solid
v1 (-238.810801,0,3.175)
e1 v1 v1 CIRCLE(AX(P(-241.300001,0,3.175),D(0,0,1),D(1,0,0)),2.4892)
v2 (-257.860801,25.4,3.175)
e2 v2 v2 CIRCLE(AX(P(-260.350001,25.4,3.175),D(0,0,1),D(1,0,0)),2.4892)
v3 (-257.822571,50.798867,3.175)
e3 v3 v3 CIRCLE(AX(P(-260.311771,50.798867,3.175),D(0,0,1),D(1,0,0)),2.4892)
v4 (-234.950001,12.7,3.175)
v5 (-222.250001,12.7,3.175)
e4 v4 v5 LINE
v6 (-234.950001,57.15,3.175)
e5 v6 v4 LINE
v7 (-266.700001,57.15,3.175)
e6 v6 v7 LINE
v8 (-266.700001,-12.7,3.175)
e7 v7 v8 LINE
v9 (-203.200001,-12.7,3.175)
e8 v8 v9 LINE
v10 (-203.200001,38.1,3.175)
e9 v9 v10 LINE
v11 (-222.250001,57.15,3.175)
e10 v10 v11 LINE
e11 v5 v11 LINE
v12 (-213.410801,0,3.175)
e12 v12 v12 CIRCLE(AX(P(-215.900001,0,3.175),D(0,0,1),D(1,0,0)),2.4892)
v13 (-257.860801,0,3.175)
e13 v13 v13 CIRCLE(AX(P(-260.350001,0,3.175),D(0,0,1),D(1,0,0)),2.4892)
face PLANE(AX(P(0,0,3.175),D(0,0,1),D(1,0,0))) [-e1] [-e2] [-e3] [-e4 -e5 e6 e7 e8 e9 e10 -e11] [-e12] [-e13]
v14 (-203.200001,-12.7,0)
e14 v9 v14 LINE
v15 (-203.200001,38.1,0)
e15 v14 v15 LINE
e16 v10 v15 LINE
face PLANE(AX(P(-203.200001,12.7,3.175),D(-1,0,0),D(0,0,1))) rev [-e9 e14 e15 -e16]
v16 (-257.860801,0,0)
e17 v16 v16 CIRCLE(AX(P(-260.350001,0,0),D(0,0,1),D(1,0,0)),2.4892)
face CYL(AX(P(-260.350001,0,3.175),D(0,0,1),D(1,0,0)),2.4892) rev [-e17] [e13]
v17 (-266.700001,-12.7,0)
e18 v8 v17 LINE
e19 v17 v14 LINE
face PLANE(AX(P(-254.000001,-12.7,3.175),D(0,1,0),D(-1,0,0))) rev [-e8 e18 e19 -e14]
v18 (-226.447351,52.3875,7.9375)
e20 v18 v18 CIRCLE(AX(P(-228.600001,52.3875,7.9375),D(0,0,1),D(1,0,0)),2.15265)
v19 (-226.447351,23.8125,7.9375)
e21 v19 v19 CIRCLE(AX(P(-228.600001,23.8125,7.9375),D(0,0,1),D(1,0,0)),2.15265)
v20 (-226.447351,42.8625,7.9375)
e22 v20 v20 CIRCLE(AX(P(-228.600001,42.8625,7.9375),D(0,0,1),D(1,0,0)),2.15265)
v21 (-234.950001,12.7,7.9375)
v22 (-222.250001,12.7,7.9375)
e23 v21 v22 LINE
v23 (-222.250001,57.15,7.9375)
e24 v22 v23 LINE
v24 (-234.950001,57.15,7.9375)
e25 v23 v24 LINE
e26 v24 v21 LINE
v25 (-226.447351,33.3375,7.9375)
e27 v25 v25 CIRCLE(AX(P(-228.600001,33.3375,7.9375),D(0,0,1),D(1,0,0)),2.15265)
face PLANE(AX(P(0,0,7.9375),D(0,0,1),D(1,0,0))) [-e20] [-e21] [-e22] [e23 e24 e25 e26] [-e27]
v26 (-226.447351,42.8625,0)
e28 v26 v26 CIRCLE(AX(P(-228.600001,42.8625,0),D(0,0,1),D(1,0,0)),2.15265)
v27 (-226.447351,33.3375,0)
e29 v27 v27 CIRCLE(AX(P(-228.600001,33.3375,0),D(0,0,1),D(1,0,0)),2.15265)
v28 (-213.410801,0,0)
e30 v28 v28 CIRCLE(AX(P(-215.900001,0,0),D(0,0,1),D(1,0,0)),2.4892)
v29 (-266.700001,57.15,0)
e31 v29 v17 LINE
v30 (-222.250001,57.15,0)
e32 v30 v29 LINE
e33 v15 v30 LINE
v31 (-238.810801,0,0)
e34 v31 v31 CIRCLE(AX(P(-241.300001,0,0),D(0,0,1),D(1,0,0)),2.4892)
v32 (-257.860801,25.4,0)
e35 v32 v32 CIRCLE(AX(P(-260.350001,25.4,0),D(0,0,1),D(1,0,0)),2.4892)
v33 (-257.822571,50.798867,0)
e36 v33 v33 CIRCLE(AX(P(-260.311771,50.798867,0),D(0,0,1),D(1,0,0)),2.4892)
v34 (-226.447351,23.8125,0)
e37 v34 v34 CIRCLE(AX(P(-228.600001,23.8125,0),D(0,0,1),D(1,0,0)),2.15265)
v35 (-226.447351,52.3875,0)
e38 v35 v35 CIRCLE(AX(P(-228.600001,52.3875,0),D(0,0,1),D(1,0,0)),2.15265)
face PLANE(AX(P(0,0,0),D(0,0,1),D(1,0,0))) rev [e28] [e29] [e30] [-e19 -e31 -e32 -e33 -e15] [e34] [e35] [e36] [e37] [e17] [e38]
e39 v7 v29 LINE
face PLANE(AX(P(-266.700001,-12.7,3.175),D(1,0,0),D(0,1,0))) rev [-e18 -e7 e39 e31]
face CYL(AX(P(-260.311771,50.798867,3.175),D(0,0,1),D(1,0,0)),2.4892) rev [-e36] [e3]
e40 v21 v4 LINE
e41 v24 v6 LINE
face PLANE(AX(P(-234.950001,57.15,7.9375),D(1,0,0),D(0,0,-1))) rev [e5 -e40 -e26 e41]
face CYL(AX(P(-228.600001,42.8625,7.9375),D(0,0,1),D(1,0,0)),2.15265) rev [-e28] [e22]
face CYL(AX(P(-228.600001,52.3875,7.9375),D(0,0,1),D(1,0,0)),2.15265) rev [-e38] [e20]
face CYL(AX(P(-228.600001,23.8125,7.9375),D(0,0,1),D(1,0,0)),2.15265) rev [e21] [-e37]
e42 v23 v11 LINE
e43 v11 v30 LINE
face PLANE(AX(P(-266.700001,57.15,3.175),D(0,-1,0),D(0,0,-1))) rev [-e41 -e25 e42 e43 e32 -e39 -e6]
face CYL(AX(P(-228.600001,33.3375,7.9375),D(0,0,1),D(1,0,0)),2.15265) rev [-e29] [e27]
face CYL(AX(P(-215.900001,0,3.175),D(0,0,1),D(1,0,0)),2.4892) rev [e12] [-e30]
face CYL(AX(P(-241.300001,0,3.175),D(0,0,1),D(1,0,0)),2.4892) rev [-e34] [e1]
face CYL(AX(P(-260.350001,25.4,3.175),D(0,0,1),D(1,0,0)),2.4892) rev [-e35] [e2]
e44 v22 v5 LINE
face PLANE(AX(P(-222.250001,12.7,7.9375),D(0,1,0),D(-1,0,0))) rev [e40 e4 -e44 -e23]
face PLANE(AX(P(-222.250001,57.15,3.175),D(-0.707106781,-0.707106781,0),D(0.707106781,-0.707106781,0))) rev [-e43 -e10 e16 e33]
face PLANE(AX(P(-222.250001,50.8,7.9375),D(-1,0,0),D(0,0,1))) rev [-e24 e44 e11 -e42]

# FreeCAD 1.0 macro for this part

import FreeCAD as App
import Part
import Sketcher

V = App.Vector
Q = App.Units.Quantity

doc = App.newDocument("Part")
body = doc.addObject("PartDesign::Body", "Body")

# Sketch on XY plane
sketch1 = doc.addObject("Sketcher::SketchObject", "Sketch")
body.addObject(sketch1)
sketch1.AttachmentSupport = (doc.XY_Plane, [""])
sketch1.MapMode = "FlatFace"
sketch1.addGeometry([
    Part.LineSegment(V(-267, -13, 0), V(-203, -13, 0)),  # 0
    Part.LineSegment(V(-203, -13, 0), V(-203, 38, 0)),  # 1
    Part.LineSegment(V(-203, 38, 0), V(-222, 57, 0)),  # 2
    Part.LineSegment(V(-222, 57, 0), V(-267, 57, 0)),  # 3
    Part.LineSegment(V(-267, 57, 0), V(-267, -13, 0)),  # 4
], False)
sketch1.addConstraint([
    Sketcher.Constraint("Coincident", 0, 2, 1, 1),
    Sketcher.Constraint("Coincident", 1, 2, 2, 1),
    Sketcher.Constraint("Coincident", 2, 2, 3, 1),
    Sketcher.Constraint("Coincident", 3, 2, 4, 1),
    Sketcher.Constraint("Coincident", 4, 2, 0, 1),
    Sketcher.Constraint("Horizontal", 0),
    Sketcher.Constraint("Vertical", 1),
    Sketcher.Constraint("Horizontal", 3),
    Sketcher.Constraint("Vertical", 4),
    Sketcher.Constraint("DistanceY", 1, 1, 1, 2, Q("2 in")),
    Sketcher.Constraint("DistanceX", 0, 1, 0, 2, Q("2.5 in")),
    Sketcher.Constraint("DistanceX", 0, 2, -1, 1, Q("8 in")),
    Sketcher.Constraint("Angle", 2, Q("135 deg")),
    Sketcher.Constraint("DistanceX", 3, 2, 3, 1, Q("1.75 in")),
    Sketcher.Constraint("DistanceY", 0, 2, -1, 1, Q("0.5 in")),
])
pad1 = doc.addObject("PartDesign::Pad", "Pad")
body.addObject(pad1)
pad1.Profile = sketch1
pad1.Length = Q("0.125 in")

# Sketch on XY plane
sketch2 = doc.addObject("Sketcher::SketchObject", "Sketch001")
body.addObject(sketch2)
sketch2.AttachmentSupport = (doc.XY_Plane, [""])
sketch2.MapMode = "FlatFace"
sketch2.AttachmentOffset = App.Placement(V(0, 0, 0.125 * 25.4), App.Rotation())
sketch2.addGeometry([
    Part.Circle(V(-260.3, 50.8, 0), V(0, 0, 1), 2.5),  # 0
    Part.Circle(V(-260.4, 25.4, 0), V(0, 0, 1), 2.5),  # 1
    Part.Circle(V(-260.4, 0, 0), V(0, 0, 1), 2.5),  # 2
    Part.Circle(V(-241.3, 0, 0), V(0, 0, 1), 2.5),  # 3
    Part.Circle(V(-215.9, 0, 0), V(0, 0, 1), 2.5),  # 4
], False)
sketch2.addConstraint([
    Sketcher.Constraint("Equal", 0, 1),
    Sketcher.Constraint("Equal", 1, 2),
    Sketcher.Constraint("Equal", 2, 3),
    Sketcher.Constraint("Equal", 3, 4),
    Sketcher.Constraint("PointOnObject", 2, 3, -1),
    Sketcher.Constraint("PointOnObject", 3, 3, -1),
    Sketcher.Constraint("PointOnObject", 4, 3, -1),
    Sketcher.Constraint("Vertical", 1, 3, 2, 3),
    Sketcher.Constraint("Diameter", 0, Q("0.196 in")),
    Sketcher.Constraint("DistanceY", -1, 1, 1, 3, Q("1 in")),
    Sketcher.Constraint("DistanceX", 3, 3, 4, 3, Q("1 in")),
    Sketcher.Constraint("DistanceX", 3, 3, -1, 1, Q("9.5 in")),
    Sketcher.Constraint("DistanceX", 1, 3, -1, 1, Q("10.25 in")),
    Sketcher.Constraint("DistanceX", 0, 3, -1, 1, Q("260.311771 mm")),
    Sketcher.Constraint("DistanceY", -1, 1, 0, 3, Q("50.798867 mm")),
])
doc.recompute()
hole = doc.addObject("PartDesign::Hole", "Hole")
body.addObject(hole)
hole.Profile = sketch2
hole.ThreadType = "None"
hole.Diameter = Q("0.196 in")
hole.DepthType = "ThroughAll"

# Sketch on XY plane
sketch3 = doc.addObject("Sketcher::SketchObject", "Sketch002")
body.addObject(sketch3)
sketch3.AttachmentSupport = (doc.XY_Plane, [""])
sketch3.MapMode = "FlatFace"
sketch3.AttachmentOffset = App.Placement(V(0, 0, 0.125 * 25.4), App.Rotation())
sketch3.addGeometry([
    Part.LineSegment(V(-222, 57, 0), V(-235, 57, 0)),
    Part.LineSegment(V(-235, 57, 0), V(-235, 13, 0)),
    Part.LineSegment(V(-235, 13, 0), V(-222, 13, 0)),
    Part.LineSegment(V(-222, 13, 0), V(-222, 57, 0)),
], False)
sketch3.addConstraint([
    Sketcher.Constraint("Coincident", 0, 2, 1, 1),
    Sketcher.Constraint("Coincident", 1, 2, 2, 1),
    Sketcher.Constraint("Coincident", 2, 2, 3, 1),
    Sketcher.Constraint("Coincident", 3, 2, 0, 1),
    Sketcher.Constraint("Horizontal", 0),
    Sketcher.Constraint("Vertical", 1),
    Sketcher.Constraint("Horizontal", 2),
    Sketcher.Constraint("Vertical", 3),
    Sketcher.Constraint("DistanceX", 0, 2, 0, 1, Q("0.5 in")),
    Sketcher.Constraint("DistanceY", 1, 2, 1, 1, Q("1.75 in")),
    Sketcher.Constraint("DistanceY", -1, 1, 1, 2, Q("0.5 in")),
    Sketcher.Constraint("DistanceX", 0, 2, -1, 1, Q("9.25 in")),
])
pad2 = doc.addObject("PartDesign::Pad", "Pad001")
body.addObject(pad2)
pad2.Profile = sketch3
pad2.Length = Q("0.1875 in")

# Sketch on XY plane
sketch4 = doc.addObject("Sketcher::SketchObject", "Sketch003")
body.addObject(sketch4)
sketch4.AttachmentSupport = (doc.XY_Plane, [""])
sketch4.MapMode = "FlatFace"
sketch4.AttachmentOffset = App.Placement(V(0, 0, 0.3125 * 25.4), App.Rotation())
sketch4.addGeometry([
    Part.Circle(V(-228.6, 42.9, 0), V(0, 0, 1), 2.2),
    Part.Circle(V(-228.6, 52.4, 0), V(0, 0, 1), 2.2),
    Part.Circle(V(-228.6, 33.3, 0), V(0, 0, 1), 2.2),
    Part.Circle(V(-228.6, 23.8, 0), V(0, 0, 1), 2.2),
], False)
sketch4.addConstraint([
    Sketcher.Constraint("Equal", 0, 1),
    Sketcher.Constraint("Equal", 1, 2),
    Sketcher.Constraint("Equal", 2, 3),
    Sketcher.Constraint("Vertical", 0, 3, 1, 3),
    Sketcher.Constraint("Vertical", 1, 3, 2, 3),
    Sketcher.Constraint("Vertical", 2, 3, 3, 3),
    Sketcher.Constraint("DistanceX", 0, 3, -1, 1, Q("9 in")),
    Sketcher.Constraint("Diameter", 0, Q("0.1695 in")),
    Sketcher.Constraint("DistanceY", 2, 3, 1, 3, Q("0.75 in")),
    Sketcher.Constraint("DistanceY", 3, 3, 0, 3, Q("0.75 in")),
    Sketcher.Constraint("DistanceY", -1, 1, 0, 3, Q("1.6875 in")),
    Sketcher.Constraint("DistanceY", -1, 1, 1, 3, Q("2.0625 in")),
])
doc.recompute()
hole2 = doc.addObject("PartDesign::Hole", "Hole001")
body.addObject(hole2)
hole2.Profile = sketch4
hole2.ThreadType = "None"
hole2.Diameter = Q("0.1695 in")
hole2.DepthType = "ThroughAll"

doc.recompute()
